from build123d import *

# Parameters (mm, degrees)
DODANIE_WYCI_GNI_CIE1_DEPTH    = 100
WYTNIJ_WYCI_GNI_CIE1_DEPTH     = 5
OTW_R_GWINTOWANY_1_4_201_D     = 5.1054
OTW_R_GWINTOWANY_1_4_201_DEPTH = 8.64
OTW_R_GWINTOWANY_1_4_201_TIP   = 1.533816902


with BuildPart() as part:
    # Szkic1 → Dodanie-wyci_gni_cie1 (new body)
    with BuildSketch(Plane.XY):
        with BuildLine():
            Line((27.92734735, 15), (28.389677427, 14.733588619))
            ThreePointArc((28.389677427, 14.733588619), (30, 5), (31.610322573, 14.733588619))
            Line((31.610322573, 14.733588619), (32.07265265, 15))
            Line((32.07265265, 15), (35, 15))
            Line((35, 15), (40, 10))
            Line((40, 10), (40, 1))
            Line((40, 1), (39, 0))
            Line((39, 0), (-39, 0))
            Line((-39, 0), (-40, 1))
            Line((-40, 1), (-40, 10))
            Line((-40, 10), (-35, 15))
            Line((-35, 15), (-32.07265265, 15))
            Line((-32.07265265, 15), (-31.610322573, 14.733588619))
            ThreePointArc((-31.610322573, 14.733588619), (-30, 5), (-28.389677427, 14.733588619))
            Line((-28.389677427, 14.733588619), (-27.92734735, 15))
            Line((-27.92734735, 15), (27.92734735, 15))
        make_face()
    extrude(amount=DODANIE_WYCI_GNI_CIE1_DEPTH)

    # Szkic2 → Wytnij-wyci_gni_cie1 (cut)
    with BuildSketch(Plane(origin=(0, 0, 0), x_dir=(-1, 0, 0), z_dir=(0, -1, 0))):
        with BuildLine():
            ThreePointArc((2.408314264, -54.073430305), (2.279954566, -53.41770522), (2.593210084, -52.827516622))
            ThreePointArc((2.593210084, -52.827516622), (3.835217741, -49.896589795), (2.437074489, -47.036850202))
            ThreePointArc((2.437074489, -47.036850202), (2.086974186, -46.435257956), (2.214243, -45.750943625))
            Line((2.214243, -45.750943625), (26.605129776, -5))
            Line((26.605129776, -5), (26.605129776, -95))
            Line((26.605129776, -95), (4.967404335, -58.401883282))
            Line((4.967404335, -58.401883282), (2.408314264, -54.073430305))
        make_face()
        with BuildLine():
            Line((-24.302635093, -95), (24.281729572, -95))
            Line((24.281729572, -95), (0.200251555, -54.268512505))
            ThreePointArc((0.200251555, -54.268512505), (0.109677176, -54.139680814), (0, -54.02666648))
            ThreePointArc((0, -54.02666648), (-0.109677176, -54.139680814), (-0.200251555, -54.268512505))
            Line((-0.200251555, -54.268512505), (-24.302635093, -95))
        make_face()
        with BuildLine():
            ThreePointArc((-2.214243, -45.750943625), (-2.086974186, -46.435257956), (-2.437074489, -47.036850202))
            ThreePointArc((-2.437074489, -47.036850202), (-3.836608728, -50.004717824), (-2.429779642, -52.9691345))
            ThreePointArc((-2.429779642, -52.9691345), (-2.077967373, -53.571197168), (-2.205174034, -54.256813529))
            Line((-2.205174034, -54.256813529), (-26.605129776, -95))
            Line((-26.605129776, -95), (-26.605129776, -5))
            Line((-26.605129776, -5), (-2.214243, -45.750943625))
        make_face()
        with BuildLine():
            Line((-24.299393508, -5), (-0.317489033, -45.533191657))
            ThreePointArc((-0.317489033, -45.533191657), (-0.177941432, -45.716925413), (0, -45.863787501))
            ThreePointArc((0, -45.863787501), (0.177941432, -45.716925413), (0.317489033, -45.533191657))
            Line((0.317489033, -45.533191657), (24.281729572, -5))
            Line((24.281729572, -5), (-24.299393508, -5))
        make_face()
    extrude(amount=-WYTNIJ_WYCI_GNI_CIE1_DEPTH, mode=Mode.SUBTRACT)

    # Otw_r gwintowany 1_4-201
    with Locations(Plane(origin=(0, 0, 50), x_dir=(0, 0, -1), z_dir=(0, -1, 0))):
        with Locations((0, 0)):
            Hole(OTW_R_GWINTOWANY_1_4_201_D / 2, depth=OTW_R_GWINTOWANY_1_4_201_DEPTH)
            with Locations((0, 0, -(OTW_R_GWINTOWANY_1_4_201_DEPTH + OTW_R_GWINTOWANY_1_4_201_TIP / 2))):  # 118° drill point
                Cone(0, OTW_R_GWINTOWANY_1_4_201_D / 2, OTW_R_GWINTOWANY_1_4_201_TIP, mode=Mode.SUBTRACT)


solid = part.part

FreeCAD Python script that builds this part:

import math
import FreeCAD as App
import Part
import Sketcher

V = App.Vector

doc = App.newDocument("Part")
body = doc.addObject("PartDesign::Body", "Body")

# Sketch on XY plane
sketch1 = body.newObject("Sketcher::SketchObject", "Sketch")
sketch1.AttachmentSupport = (doc.getObject("XY_Plane"), [""])
sketch1.MapMode = "FlatFace"
sketch1.addGeometry(Part.LineSegment(V(28.4, 14.7, 0), V(27.9, 15, 0)), False)
sketch1.addGeometry(Part.LineSegment(V(27.9, 15, 0), V(-27.9, 15, 0)), False)
sketch1.addGeometry(Part.LineSegment(V(-27.9, 15, 0), V(-28.4, 14.7, 0)), False)
sketch1.addGeometry(Part.ArcOfCircle(Part.Circle(V(-30, 10, 0), V(0, 0, 1), 5), math.radians(109), math.radians(431)), False)
sketch1.addGeometry(Part.LineSegment(V(-31.6, 14.7, 0), V(-32.1, 15, 0)), False)
sketch1.addGeometry(Part.LineSegment(V(-32.1, 15, 0), V(-35, 15, 0)), False)
sketch1.addGeometry(Part.LineSegment(V(-35, 15, 0), V(-40, 10, 0)), False)
sketch1.addGeometry(Part.LineSegment(V(-40, 10, 0), V(-40, 1, 0)), False)
sketch1.addGeometry(Part.LineSegment(V(-40, 1, 0), V(-39, 0, 0)), False)
sketch1.addGeometry(Part.LineSegment(V(-39, 0, 0), V(39, 0, 0)), False)
sketch1.addGeometry(Part.LineSegment(V(39, 0, 0), V(40, 1, 0)), False)
sketch1.addGeometry(Part.LineSegment(V(40, 1, 0), V(40, 10, 0)), False)
sketch1.addGeometry(Part.LineSegment(V(40, 10, 0), V(35, 15, 0)), False)
sketch1.addGeometry(Part.LineSegment(V(35, 15, 0), V(32.1, 15, 0)), False)
sketch1.addGeometry(Part.LineSegment(V(32.1, 15, 0), V(31.6, 14.7, 0)), False)
sketch1.addGeometry(Part.ArcOfCircle(Part.Circle(V(30, 10, 0), V(0, 0, 1), 5), math.radians(109), math.radians(431)), False)
sketch1.addConstraint(Sketcher.Constraint("Coincident", 0, 2, 1, 1))
sketch1.addConstraint(Sketcher.Constraint("Coincident", 1, 2, 2, 1))
sketch1.addConstraint(Sketcher.Constraint("Coincident", 2, 2, 3, 2))
sketch1.addConstraint(Sketcher.Constraint("Coincident", 3, 1, 4, 1))
sketch1.addConstraint(Sketcher.Constraint("Coincident", 4, 2, 5, 1))
sketch1.addConstraint(Sketcher.Constraint("Coincident", 5, 2, 6, 1))
sketch1.addConstraint(Sketcher.Constraint("Coincident", 6, 2, 7, 1))
sketch1.addConstraint(Sketcher.Constraint("Coincident", 7, 2, 8, 1))
sketch1.addConstraint(Sketcher.Constraint("Coincident", 8, 2, 9, 1))
sketch1.addConstraint(Sketcher.Constraint("Coincident", 9, 2, 10, 1))
sketch1.addConstraint(Sketcher.Constraint("Coincident", 10, 2, 11, 1))
sketch1.addConstraint(Sketcher.Constraint("Coincident", 11, 2, 12, 1))
sketch1.addConstraint(Sketcher.Constraint("Coincident", 12, 2, 13, 1))
sketch1.addConstraint(Sketcher.Constraint("Coincident", 13, 2, 14, 1))
sketch1.addConstraint(Sketcher.Constraint("Coincident", 14, 2, 15, 2))
sketch1.addConstraint(Sketcher.Constraint("Coincident", 15, 1, 0, 1))
sketch1.addConstraint(Sketcher.Constraint("Horizontal", 1))
sketch1.addConstraint(Sketcher.Constraint("Horizontal", 5))
sketch1.addConstraint(Sketcher.Constraint("Vertical", 7))
sketch1.addConstraint(Sketcher.Constraint("Horizontal", 9))
sketch1.addConstraint(Sketcher.Constraint("Vertical", 11))
sketch1.addConstraint(Sketcher.Constraint("Horizontal", 13))
sketch1.addConstraint(Sketcher.Constraint("Equal", 3, 15))
sketch1.addConstraint(Sketcher.Constraint("Symmetric", 8, 2, 9, 2, -1, 1))
sketch1.addConstraint(Sketcher.Constraint("Symmetric", 3, 3, 15, 3, -2))
sketch1.addConstraint(Sketcher.Constraint("Symmetric", 7, 2, 10, 2, -2))
sketch1.addConstraint(Sketcher.Constraint("Symmetric", 5, 2, 12, 2, -2))
sketch1.addConstraint(Sketcher.Constraint("Parallel", 0, 4))
sketch1.addConstraint(Sketcher.Constraint("Perpendicular", 6, 8))
sketch1.addConstraint(Sketcher.Constraint("Perpendicular", 8, 10))
sketch1.addConstraint(Sketcher.Constraint("Perpendicular", 10, 12))
sketch1.addConstraint(Sketcher.Constraint("Parallel", 2, 14))
sketch1.addConstraint(Sketcher.Constraint("Horizontal", 2, 2, 3, 1))
sketch1.addConstraint(Sketcher.Constraint("Horizontal", 1, 2, 4, 2))
sketch1.addConstraint(Sketcher.Constraint("Horizontal", 15, 3, 6, 2))
sketch1.addConstraint(Sketcher.Constraint("Horizontal", 3, 1, 14, 2))
sketch1.addConstraint(Sketcher.Constraint("Horizontal", 14, 2, 15, 1))
sketch1.addConstraint(Sketcher.Constraint("Equal", 5, 13))
sketch1.addConstraint(Sketcher.Constraint("Radius", 3, 5.0))
sketch1.addConstraint(Sketcher.Constraint("DistanceX", 9, 1, 9, 2, 78.0))
sketch1.addConstraint(Sketcher.Constraint("DistanceY", 7, 2, 7, 1, 9.0))
sketch1.addConstraint(Sketcher.Constraint("DistanceX", 3, 3, -1, 1, 30.0))
sketch1.addConstraint(Sketcher.Constraint("DistanceY", -1, 1, 3, 3, 10.0))
sketch1.addConstraint(Sketcher.Constraint("DistanceY", -1, 1, 0, 2, 15.0))
sketch1.addConstraint(Sketcher.Constraint("DistanceX", 1, 2, 1, 1, 55.854695))
sketch1.addConstraint(Sketcher.Constraint("DistanceY", -1, 1, 2, 2, 14.733589))
pad1 = body.newObject("PartDesign::Pad", "Pad")
pad1.Profile = sketch1
pad1.Length = 100

# Sketch on XZ plane
sketch2 = body.newObject("Sketcher::SketchObject", "Sketch001")
sketch2.AttachmentSupport = (doc.getObject("XZ_Plane"), [""])
sketch2.MapMode = "FlatFace"
sketch2.addGeometry(Part.ArcOfCircle(Part.Circle(V(-3.27, 53.56, 0), V(0, 0, 1), 1), math.radians(-47), math.radians(31)), False)
sketch2.addGeometry(Part.LineSegment(V(-2.41, 54.07, 0), V(-4.97, 58.4, 0)), False)
sketch2.addGeometry(Part.LineSegment(V(-4.97, 58.4, 0), V(-26.61, 95, 0)), False)
sketch2.addGeometry(Part.LineSegment(V(-26.61, 95, 0), V(-26.61, 5, 0)), False)
sketch2.addGeometry(Part.LineSegment(V(-26.61, 5, 0), V(-2.21, 45.75, 0)), False)
sketch2.addGeometry(Part.ArcOfCircle(Part.Circle(V(-3.07, 46.26, 0), V(0, 0, 1), 1), math.radians(-31), math.radians(51)), False)
sketch2.addGeometry(Part.ArcOfCircle(Part.Circle(V(0, 50, 0), V(0, 0, 1), 3.84), math.radians(133), math.radians(231)), False)
sketch2.addGeometry(Part.LineSegment(V(24.3, 95, 0), V(-24.28, 95, 0)), False)
sketch2.addGeometry(Part.LineSegment(V(-24.28, 95, 0), V(-0.2, 54.27, 0)), False)
sketch2.addGeometry(Part.ArcOfCircle(Part.Circle(V(0.66, 54.78, 0), V(0, 0, 1), 1), math.radians(-149.41), math.radians(-131.34)), False)
sketch2.addGeometry(Part.ArcOfCircle(Part.Circle(V(-0.66, 54.78, 0), V(0, 0, 1), 1), math.radians(-48.66), math.radians(-30.59)), False)
sketch2.addGeometry(Part.LineSegment(V(0.2, 54.27, 0), V(24.3, 95, 0)), False)
sketch2.addGeometry(Part.ArcOfCircle(Part.Circle(V(3.07, 46.26, 0), V(0, 0, 1), 1), math.radians(129), math.radians(211)), False)
sketch2.addGeometry(Part.LineSegment(V(2.21, 45.75, 0), V(26.61, 5, 0)), False)
sketch2.addGeometry(Part.LineSegment(V(26.61, 5, 0), V(26.61, 95, 0)), False)
sketch2.addGeometry(Part.LineSegment(V(26.61, 95, 0), V(2.21, 54.26, 0)), False)
sketch2.addGeometry(Part.ArcOfCircle(Part.Circle(V(3.06, 53.74, 0), V(0, 0, 1), 1), math.radians(149), math.radians(231)), False)
sketch2.addGeometry(Part.ArcOfCircle(Part.Circle(V(0, 50, 0), V(0, 0, 1), 3.84), math.radians(-51), math.radians(51)), False)
sketch2.addGeometry(Part.LineSegment(V(24.3, 5, 0), V(0.32, 45.53, 0)), False)
sketch2.addGeometry(Part.ArcOfCircle(Part.Circle(V(-0.54, 45.02, 0), V(0, 0, 1), 1), math.radians(31), math.radians(57)), False)
sketch2.addGeometry(Part.ArcOfCircle(Part.Circle(V(0.54, 45.02, 0), V(0, 0, 1), 1), math.radians(123), math.radians(149)), False)
sketch2.addGeometry(Part.LineSegment(V(-0.32, 45.53, 0), V(-24.28, 5, 0)), False)
sketch2.addGeometry(Part.LineSegment(V(-24.28, 5, 0), V(24.3, 5, 0)), False)
sketch2.addConstraint(Sketcher.Constraint("Tangent", 0, 2, 1, 1))
sketch2.addConstraint(Sketcher.Constraint("Coincident", 1, 2, 2, 1))
sketch2.addConstraint(Sketcher.Constraint("Coincident", 2, 2, 3, 1))
sketch2.addConstraint(Sketcher.Constraint("Coincident", 3, 2, 4, 1))
sketch2.addConstraint(Sketcher.Constraint("Tangent", 4, 2, 5, 1))
sketch2.addConstraint(Sketcher.Constraint("Tangent", 5, 2, 6, 2))
sketch2.addConstraint(Sketcher.Constraint("Tangent", 6, 1, 0, 1))
sketch2.addConstraint(Sketcher.Constraint("Coincident", 7, 2, 8, 1))
sketch2.addConstraint(Sketcher.Constraint("Tangent", 8, 2, 9, 1))
sketch2.addConstraint(Sketcher.Constraint("Coincident", 9, 2, 10, 1))
sketch2.addConstraint(Sketcher.Constraint("Coincident", 10, 2, 11, 1))
sketch2.addConstraint(Sketcher.Constraint("Coincident", 11, 2, 7, 1))
sketch2.addConstraint(Sketcher.Constraint("Tangent", 12, 2, 13, 1))
sketch2.addConstraint(Sketcher.Constraint("Coincident", 13, 2, 14, 1))
sketch2.addConstraint(Sketcher.Constraint("Coincident", 14, 2, 15, 1))
sketch2.addConstraint(Sketcher.Constraint("Tangent", 15, 2, 16, 1))
sketch2.addConstraint(Sketcher.Constraint("Tangent", 16, 2, 17, 2))
sketch2.addConstraint(Sketcher.Constraint("Tangent", 17, 1, 12, 1))
sketch2.addConstraint(Sketcher.Constraint("Coincident", 18, 2, 19, 1))
sketch2.addConstraint(Sketcher.Constraint("Coincident", 19, 2, 20, 1))
sketch2.addConstraint(Sketcher.Constraint("Tangent", 20, 2, 21, 1))
sketch2.addConstraint(Sketcher.Constraint("Coincident", 21, 2, 22, 1))
sketch2.addConstraint(Sketcher.Constraint("Coincident", 22, 2, 18, 1))
sketch2.addConstraint(Sketcher.Constraint("Vertical", 3))
sketch2.addConstraint(Sketcher.Constraint("Horizontal", 7))
sketch2.addConstraint(Sketcher.Constraint("Vertical", 14))
sketch2.addConstraint(Sketcher.Constraint("Horizontal", 22))
sketch2.addConstraint(Sketcher.Constraint("Coincident", 17, 3, 6, 3))
sketch2.addConstraint(Sketcher.Constraint("Equal", 0, 5))
sketch2.addConstraint(Sketcher.Constraint("Equal", 5, 9))
sketch2.addConstraint(Sketcher.Constraint("Equal", 9, 10))
sketch2.addConstraint(Sketcher.Constraint("Equal", 10, 12))
sketch2.addConstraint(Sketcher.Constraint("Equal", 12, 16))
sketch2.addConstraint(Sketcher.Constraint("Equal", 6, 17))
sketch2.addConstraint(Sketcher.Constraint("Equal", 16, 19))
sketch2.addConstraint(Sketcher.Constraint("Equal", 19, 20))
sketch2.addConstraint(Sketcher.Constraint("Symmetric", 9, 3, 10, 3, -2))
sketch2.addConstraint(Sketcher.Constraint("Symmetric", 5, 3, 12, 3, -2))
sketch2.addConstraint(Sketcher.Constraint("Symmetric", 19, 3, 20, 3, -2))
sketch2.addConstraint(Sketcher.Constraint("Symmetric", 3, 2, 13, 2, -2))
sketch2.addConstraint(Sketcher.Constraint("Parallel", 1, 2))
sketch2.addConstraint(Sketcher.Constraint("Parallel", 2, 8))
sketch2.addConstraint(Sketcher.Constraint("Horizontal", 2, 2, 7, 2))
sketch2.addConstraint(Sketcher.Constraint("Horizontal", 8, 2, 10, 2))
sketch2.addConstraint(Sketcher.Constraint("Horizontal", 11, 2, 14, 2))
sketch2.addConstraint(Sketcher.Constraint("Horizontal", 18, 2, 20, 2))
sketch2.addConstraint(Sketcher.Constraint("Horizontal", 13, 2, 21, 2))
sketch2.addConstraint(Sketcher.Constraint("Vertical", 7, 2, 21, 2))
sketch2.addConstraint(Sketcher.Constraint("Radius", 0, 1.0))
sketch2.addConstraint(Sketcher.Constraint("DistanceY", 3, 2, 3, 1, 90.0))
sketch2.addConstraint(Sketcher.Constraint("DistanceY", -1, 1, 6, 3, 50.0))
sketch2.addConstraint(Sketcher.Constraint("DistanceY", -1, 1, 2, 2, 95.0))
sketch2.addConstraint(Sketcher.Constraint("Radius", 6, 3.836612))
sketch2.addConstraint(Sketcher.Constraint("DistanceY", -1, 1, 0, 3, 53.564499))
sketch2.addConstraint(Sketcher.Constraint("DistanceX", 2, 2, 7, 2, 2.3234))
sketch2.addConstraint(Sketcher.Constraint("DistanceY", 15, 2, 10, 2, 0.011699))
sketch2.addConstraint(Sketcher.Constraint("Distance", 4, 47.492681))
sketch2.addConstraint(Sketcher.Constraint("DistanceX", 7, 2, 7, 1, 48.584365))
sketch2.addConstraint(Sketcher.Constraint("DistanceX", 22, 1, 22, 2, 48.581123))
sketch2.addConstraint(Sketcher.Constraint("DistanceX", 5, 3, -1, 1, 3.07229))
sketch2.addConstraint(Sketcher.Constraint("DistanceY", -1, 1, 16, 3, 53.743029))
sketch2.addConstraint(Sketcher.Constraint("DistanceX", 19, 3, -1, 1, 0.543318))
sketch2.addConstraint(Sketcher.Constraint("DistanceY", -1, 1, 19, 3, 45.024261))
sketch2.addConstraint(Sketcher.Constraint("DistanceX", 1, 2, 0, 2, 2.55909))
pocket1 = body.newObject("PartDesign::Pocket", "Pocket")
pocket1.Profile = sketch2
pocket1.Length = 5

# Sketch on XZ plane
sketch3 = body.newObject("Sketcher::SketchObject", "Sketch002")
sketch3.AttachmentSupport = (doc.getObject("XZ_Plane"), [""])
sketch3.MapMode = "FlatFace"
sketch3.addGeometry(Part.Circle(V(0, 50, 0), V(0, 0, 1), 2.6), False)
sketch3.addConstraint(Sketcher.Constraint("PointOnObject", 0, 3, -2))
sketch3.addConstraint(Sketcher.Constraint("DistanceY", -1, 1, 0, 3, 50.0))
sketch3.addConstraint(Sketcher.Constraint("Diameter", 0, 5.1054))
doc.recompute()
hole = body.newObject("PartDesign::Hole", "Hole")
hole.Profile = sketch3
hole.ThreadType = "None"
hole.Diameter = 5.1054
hole.DepthType = "Dimension"
hole.Depth = 8.64
hole.DrillPoint = "Angled"
hole.DrillPointAngle = 118

doc.recompute()
